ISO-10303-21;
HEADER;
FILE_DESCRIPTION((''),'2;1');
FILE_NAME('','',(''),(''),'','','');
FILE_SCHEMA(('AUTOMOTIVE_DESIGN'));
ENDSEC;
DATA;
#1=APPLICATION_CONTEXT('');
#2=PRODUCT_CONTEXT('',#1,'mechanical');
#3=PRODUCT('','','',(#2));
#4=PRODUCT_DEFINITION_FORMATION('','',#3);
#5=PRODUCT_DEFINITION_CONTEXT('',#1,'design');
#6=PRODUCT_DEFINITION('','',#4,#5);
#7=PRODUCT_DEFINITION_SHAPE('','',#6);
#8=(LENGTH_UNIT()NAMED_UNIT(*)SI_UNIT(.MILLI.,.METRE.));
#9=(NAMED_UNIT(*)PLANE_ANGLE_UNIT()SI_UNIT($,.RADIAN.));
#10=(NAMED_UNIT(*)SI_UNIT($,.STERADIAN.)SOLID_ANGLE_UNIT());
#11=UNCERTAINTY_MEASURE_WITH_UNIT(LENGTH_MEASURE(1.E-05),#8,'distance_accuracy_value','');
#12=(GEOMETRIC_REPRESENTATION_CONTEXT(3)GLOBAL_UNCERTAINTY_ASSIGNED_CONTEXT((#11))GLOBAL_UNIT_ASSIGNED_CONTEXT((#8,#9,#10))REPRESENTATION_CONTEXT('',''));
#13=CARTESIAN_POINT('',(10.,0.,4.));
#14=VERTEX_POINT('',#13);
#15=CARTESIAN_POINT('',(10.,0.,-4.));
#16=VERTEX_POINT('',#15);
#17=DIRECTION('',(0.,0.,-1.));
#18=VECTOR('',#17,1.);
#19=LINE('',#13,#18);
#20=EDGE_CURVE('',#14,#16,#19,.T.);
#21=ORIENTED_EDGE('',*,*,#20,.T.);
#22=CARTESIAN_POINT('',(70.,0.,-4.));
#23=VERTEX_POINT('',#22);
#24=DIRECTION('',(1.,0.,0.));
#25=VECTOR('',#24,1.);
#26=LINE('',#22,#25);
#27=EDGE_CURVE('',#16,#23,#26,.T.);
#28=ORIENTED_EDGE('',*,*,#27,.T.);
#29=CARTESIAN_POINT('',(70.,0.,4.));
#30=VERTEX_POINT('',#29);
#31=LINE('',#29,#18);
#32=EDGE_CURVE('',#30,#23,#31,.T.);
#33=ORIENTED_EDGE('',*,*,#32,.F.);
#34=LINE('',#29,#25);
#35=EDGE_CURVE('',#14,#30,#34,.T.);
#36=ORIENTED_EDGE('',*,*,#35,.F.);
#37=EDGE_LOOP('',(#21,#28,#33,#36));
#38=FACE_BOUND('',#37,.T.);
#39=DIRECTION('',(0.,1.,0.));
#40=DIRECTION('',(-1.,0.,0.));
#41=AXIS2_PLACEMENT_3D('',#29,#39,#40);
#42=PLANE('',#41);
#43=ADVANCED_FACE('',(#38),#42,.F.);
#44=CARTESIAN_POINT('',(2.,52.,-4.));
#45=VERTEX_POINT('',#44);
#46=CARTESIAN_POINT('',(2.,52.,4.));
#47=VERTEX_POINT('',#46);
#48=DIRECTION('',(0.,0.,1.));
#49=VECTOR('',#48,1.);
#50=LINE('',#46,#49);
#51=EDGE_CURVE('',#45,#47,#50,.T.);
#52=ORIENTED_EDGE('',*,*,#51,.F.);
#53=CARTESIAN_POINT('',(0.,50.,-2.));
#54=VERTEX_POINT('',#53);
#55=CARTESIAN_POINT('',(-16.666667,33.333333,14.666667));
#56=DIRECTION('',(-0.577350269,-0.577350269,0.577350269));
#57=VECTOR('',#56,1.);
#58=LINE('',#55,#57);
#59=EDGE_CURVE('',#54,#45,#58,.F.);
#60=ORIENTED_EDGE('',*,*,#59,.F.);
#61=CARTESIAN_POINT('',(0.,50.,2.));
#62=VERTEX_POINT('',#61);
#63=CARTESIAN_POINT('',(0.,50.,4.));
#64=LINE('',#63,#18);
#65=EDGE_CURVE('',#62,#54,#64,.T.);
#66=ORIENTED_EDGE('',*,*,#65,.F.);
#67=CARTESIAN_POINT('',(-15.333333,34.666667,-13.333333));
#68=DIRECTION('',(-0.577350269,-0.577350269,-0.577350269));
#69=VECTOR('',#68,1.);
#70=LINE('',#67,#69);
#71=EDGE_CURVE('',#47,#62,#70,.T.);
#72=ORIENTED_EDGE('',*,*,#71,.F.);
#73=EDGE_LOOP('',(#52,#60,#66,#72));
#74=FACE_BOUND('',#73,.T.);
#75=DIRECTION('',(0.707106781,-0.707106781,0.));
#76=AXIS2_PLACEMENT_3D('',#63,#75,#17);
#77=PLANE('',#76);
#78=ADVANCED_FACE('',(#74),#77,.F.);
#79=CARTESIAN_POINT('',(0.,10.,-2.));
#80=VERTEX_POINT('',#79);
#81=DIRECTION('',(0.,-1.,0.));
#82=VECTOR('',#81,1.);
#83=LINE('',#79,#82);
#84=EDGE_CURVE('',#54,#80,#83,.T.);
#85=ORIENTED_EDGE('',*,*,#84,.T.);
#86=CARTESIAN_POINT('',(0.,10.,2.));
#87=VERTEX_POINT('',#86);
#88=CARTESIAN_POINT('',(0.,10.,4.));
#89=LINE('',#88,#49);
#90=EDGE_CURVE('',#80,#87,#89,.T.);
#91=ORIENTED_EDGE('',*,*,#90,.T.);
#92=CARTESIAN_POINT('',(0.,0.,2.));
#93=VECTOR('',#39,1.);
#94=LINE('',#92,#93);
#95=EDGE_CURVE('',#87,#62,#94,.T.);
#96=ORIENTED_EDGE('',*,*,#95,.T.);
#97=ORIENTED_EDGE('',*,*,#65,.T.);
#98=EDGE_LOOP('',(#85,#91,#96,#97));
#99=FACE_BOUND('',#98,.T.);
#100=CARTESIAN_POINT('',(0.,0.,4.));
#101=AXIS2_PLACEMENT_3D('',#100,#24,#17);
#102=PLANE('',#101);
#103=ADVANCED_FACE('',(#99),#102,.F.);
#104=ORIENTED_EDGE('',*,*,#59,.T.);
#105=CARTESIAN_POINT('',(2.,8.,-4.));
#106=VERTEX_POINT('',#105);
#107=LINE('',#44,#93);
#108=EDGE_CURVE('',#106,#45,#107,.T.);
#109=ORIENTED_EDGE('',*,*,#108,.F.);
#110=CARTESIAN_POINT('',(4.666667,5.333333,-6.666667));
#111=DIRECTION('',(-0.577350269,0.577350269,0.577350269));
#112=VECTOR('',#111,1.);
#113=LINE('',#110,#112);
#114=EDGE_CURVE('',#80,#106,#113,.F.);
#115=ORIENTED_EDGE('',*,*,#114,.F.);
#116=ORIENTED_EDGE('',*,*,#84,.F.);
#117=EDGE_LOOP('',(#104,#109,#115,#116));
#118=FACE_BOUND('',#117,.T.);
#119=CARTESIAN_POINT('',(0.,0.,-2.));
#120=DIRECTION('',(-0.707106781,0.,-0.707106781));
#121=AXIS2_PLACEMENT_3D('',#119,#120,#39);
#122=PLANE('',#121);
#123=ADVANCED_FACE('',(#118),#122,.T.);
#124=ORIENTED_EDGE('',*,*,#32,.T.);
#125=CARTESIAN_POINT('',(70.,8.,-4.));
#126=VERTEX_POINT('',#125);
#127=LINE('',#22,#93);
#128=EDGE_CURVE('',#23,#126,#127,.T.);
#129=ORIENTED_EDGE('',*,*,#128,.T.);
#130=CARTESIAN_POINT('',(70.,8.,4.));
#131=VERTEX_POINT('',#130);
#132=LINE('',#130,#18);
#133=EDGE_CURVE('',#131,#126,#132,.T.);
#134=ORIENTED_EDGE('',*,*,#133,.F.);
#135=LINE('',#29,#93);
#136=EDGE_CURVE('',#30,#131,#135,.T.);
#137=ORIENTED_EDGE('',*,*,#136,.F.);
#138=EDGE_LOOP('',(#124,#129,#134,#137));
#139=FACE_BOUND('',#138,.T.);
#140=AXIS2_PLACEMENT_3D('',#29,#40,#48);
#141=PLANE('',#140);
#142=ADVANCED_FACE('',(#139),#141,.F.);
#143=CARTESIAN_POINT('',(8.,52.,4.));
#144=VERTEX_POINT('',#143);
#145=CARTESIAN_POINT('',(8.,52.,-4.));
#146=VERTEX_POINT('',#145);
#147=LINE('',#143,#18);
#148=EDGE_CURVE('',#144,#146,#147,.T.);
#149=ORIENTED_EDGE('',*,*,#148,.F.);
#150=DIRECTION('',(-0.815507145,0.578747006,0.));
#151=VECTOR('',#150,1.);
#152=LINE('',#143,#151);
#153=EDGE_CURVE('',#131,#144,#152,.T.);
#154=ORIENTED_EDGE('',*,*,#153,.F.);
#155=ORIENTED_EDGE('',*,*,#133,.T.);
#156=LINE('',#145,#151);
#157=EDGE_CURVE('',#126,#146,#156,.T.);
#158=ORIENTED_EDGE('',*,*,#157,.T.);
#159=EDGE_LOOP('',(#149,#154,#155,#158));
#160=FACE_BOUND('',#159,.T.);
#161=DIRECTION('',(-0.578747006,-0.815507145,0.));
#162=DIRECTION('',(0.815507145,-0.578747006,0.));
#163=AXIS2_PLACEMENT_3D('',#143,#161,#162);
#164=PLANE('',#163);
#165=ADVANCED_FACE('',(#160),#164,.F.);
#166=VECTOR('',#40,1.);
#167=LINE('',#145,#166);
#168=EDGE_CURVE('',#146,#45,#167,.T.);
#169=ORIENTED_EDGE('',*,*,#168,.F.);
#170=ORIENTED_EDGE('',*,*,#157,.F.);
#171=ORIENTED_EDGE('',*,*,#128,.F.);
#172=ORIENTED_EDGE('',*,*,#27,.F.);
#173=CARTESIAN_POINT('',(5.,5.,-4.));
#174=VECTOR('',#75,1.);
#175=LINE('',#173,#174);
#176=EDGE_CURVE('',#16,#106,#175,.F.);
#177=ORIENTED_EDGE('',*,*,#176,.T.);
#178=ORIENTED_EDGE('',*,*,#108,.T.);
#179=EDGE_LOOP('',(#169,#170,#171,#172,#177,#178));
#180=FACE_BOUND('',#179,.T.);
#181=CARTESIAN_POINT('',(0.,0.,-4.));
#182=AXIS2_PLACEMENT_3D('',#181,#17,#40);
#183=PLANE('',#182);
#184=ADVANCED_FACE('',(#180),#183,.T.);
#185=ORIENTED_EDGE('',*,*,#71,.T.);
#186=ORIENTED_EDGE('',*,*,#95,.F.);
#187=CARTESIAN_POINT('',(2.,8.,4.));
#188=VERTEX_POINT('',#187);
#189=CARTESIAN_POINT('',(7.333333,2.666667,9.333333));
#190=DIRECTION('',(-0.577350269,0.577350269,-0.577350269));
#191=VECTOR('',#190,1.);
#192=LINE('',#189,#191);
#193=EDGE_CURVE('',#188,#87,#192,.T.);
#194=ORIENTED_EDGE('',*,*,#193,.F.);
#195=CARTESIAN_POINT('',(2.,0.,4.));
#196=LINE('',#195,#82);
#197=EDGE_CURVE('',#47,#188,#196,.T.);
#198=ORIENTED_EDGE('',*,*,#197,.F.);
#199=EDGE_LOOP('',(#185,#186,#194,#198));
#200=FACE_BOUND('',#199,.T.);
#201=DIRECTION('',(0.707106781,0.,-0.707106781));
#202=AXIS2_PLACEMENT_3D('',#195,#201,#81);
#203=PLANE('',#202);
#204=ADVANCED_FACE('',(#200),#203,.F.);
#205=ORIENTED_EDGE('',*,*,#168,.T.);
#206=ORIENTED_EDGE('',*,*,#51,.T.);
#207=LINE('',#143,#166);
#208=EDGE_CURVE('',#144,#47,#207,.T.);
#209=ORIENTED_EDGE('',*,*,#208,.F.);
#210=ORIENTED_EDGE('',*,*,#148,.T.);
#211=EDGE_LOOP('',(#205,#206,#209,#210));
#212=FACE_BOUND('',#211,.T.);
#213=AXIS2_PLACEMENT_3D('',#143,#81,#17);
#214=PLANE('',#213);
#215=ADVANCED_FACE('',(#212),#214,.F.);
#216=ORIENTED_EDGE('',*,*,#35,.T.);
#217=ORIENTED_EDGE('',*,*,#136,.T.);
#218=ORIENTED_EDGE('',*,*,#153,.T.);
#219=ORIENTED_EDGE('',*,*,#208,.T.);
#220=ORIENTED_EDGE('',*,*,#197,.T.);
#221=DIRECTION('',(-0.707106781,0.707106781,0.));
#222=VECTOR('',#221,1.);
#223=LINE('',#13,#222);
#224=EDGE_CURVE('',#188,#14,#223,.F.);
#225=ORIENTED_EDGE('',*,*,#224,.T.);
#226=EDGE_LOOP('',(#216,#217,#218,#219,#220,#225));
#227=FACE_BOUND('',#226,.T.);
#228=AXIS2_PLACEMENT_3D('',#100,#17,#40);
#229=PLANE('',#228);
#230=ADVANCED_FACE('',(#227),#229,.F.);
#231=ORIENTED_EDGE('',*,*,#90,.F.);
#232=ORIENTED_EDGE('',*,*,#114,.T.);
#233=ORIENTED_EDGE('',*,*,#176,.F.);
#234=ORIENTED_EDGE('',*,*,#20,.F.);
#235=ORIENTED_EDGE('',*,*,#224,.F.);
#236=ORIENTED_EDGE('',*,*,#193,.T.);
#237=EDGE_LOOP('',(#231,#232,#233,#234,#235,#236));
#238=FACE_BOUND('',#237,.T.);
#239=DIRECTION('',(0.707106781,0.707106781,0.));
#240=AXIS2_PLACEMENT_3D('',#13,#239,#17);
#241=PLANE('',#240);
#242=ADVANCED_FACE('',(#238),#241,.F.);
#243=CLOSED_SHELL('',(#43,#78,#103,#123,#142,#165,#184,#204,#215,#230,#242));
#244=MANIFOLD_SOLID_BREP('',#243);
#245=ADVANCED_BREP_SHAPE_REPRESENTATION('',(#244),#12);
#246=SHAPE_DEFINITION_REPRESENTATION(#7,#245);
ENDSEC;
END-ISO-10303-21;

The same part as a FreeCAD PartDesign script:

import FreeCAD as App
import Part
import Sketcher
Q = App.Units.Quantity


def edges_at(feature, points):
    """Names of the edges that pass closest to the given points."""
    edges = feature.Shape.Edges
    near = lambda p: min(range(len(edges)), key=lambda i: edges[i].distToShape(Part.Vertex(*p))[0])
    return sorted({f"Edge{near(p) + 1}" for p in points})

doc = App.newDocument("Part")
body = doc.addObject("PartDesign::Body", "Body")

# Sketch on XY plane
sketch1 = doc.addObject("Sketcher::SketchObject", "Sketch")
body.addObject(sketch1)
sketch1.AttachmentSupport = (doc.XY_Plane, [""])
sketch1.MapMode = "FlatFace"
sketch1.addGeometry([
    Part.LineSegment(App.Vector(0, 52, 0), App.Vector(0, 0, 0)),  # 0
    Part.LineSegment(App.Vector(0, 0, 0), App.Vector(70, 0, 0)),  # 1
    Part.LineSegment(App.Vector(70, 0, 0), App.Vector(70, 8, 0)),  # 2
    Part.LineSegment(App.Vector(70, 8, 0), App.Vector(8, 52, 0)),  # 3
    Part.LineSegment(App.Vector(8, 52, 0), App.Vector(0, 52, 0)),  # 4
], False)
sketch1.addConstraint([
    Sketcher.Constraint("Coincident", 0, 2, 1, 1),
    Sketcher.Constraint("Coincident", 1, 2, 2, 1),
    Sketcher.Constraint("Coincident", 2, 2, 3, 1),
    Sketcher.Constraint("Coincident", 3, 2, 4, 1),
    Sketcher.Constraint("Coincident", 4, 2, 0, 1),
    Sketcher.Constraint("Vertical", 0),
    Sketcher.Constraint("Horizontal", 1),
    Sketcher.Constraint("Vertical", 2),
    Sketcher.Constraint("Horizontal", 4),
    Sketcher.Constraint("Coincident", 0, 2, -1, 1),
    Sketcher.Constraint("Equal", 4, 2),
    Sketcher.Constraint("DistanceX", 1, 1, 1, 2, Q("70 mm")),
    Sketcher.Constraint("DistanceX", 4, 2, 4, 1, Q("8 mm")),
    Sketcher.Constraint("DistanceY", 0, 2, 0, 1, Q("52 mm")),
])
pad1 = doc.addObject("PartDesign::Pad", "Pad")
body.addObject(pad1)
pad1.Profile = sketch1
pad1.Length = 8
pad1.Midplane = True
doc.recompute()

chamfer = doc.addObject("PartDesign::Chamfer", "Chamfer")
body.addObject(chamfer)
chamfer.Base = (pad1, edges_at(pad1, [(0, 0, 0)]))
chamfer.Size = 10
doc.recompute()

chamfer2 = doc.addObject("PartDesign::Chamfer", "Chamfer001")
body.addObject(chamfer2)
chamfer2.Base = (chamfer, edges_at(chamfer, [(0, 31, 4), (0, 31, -4)]))
chamfer2.Size = 2
doc.recompute()

chamfer3 = doc.addObject("PartDesign::Chamfer", "Chamfer002")
body.addObject(chamfer3)
chamfer3.Base = (chamfer2, edges_at(chamfer2, [(0, 52, 0)]))
chamfer3.Size = 2

doc.recompute()
